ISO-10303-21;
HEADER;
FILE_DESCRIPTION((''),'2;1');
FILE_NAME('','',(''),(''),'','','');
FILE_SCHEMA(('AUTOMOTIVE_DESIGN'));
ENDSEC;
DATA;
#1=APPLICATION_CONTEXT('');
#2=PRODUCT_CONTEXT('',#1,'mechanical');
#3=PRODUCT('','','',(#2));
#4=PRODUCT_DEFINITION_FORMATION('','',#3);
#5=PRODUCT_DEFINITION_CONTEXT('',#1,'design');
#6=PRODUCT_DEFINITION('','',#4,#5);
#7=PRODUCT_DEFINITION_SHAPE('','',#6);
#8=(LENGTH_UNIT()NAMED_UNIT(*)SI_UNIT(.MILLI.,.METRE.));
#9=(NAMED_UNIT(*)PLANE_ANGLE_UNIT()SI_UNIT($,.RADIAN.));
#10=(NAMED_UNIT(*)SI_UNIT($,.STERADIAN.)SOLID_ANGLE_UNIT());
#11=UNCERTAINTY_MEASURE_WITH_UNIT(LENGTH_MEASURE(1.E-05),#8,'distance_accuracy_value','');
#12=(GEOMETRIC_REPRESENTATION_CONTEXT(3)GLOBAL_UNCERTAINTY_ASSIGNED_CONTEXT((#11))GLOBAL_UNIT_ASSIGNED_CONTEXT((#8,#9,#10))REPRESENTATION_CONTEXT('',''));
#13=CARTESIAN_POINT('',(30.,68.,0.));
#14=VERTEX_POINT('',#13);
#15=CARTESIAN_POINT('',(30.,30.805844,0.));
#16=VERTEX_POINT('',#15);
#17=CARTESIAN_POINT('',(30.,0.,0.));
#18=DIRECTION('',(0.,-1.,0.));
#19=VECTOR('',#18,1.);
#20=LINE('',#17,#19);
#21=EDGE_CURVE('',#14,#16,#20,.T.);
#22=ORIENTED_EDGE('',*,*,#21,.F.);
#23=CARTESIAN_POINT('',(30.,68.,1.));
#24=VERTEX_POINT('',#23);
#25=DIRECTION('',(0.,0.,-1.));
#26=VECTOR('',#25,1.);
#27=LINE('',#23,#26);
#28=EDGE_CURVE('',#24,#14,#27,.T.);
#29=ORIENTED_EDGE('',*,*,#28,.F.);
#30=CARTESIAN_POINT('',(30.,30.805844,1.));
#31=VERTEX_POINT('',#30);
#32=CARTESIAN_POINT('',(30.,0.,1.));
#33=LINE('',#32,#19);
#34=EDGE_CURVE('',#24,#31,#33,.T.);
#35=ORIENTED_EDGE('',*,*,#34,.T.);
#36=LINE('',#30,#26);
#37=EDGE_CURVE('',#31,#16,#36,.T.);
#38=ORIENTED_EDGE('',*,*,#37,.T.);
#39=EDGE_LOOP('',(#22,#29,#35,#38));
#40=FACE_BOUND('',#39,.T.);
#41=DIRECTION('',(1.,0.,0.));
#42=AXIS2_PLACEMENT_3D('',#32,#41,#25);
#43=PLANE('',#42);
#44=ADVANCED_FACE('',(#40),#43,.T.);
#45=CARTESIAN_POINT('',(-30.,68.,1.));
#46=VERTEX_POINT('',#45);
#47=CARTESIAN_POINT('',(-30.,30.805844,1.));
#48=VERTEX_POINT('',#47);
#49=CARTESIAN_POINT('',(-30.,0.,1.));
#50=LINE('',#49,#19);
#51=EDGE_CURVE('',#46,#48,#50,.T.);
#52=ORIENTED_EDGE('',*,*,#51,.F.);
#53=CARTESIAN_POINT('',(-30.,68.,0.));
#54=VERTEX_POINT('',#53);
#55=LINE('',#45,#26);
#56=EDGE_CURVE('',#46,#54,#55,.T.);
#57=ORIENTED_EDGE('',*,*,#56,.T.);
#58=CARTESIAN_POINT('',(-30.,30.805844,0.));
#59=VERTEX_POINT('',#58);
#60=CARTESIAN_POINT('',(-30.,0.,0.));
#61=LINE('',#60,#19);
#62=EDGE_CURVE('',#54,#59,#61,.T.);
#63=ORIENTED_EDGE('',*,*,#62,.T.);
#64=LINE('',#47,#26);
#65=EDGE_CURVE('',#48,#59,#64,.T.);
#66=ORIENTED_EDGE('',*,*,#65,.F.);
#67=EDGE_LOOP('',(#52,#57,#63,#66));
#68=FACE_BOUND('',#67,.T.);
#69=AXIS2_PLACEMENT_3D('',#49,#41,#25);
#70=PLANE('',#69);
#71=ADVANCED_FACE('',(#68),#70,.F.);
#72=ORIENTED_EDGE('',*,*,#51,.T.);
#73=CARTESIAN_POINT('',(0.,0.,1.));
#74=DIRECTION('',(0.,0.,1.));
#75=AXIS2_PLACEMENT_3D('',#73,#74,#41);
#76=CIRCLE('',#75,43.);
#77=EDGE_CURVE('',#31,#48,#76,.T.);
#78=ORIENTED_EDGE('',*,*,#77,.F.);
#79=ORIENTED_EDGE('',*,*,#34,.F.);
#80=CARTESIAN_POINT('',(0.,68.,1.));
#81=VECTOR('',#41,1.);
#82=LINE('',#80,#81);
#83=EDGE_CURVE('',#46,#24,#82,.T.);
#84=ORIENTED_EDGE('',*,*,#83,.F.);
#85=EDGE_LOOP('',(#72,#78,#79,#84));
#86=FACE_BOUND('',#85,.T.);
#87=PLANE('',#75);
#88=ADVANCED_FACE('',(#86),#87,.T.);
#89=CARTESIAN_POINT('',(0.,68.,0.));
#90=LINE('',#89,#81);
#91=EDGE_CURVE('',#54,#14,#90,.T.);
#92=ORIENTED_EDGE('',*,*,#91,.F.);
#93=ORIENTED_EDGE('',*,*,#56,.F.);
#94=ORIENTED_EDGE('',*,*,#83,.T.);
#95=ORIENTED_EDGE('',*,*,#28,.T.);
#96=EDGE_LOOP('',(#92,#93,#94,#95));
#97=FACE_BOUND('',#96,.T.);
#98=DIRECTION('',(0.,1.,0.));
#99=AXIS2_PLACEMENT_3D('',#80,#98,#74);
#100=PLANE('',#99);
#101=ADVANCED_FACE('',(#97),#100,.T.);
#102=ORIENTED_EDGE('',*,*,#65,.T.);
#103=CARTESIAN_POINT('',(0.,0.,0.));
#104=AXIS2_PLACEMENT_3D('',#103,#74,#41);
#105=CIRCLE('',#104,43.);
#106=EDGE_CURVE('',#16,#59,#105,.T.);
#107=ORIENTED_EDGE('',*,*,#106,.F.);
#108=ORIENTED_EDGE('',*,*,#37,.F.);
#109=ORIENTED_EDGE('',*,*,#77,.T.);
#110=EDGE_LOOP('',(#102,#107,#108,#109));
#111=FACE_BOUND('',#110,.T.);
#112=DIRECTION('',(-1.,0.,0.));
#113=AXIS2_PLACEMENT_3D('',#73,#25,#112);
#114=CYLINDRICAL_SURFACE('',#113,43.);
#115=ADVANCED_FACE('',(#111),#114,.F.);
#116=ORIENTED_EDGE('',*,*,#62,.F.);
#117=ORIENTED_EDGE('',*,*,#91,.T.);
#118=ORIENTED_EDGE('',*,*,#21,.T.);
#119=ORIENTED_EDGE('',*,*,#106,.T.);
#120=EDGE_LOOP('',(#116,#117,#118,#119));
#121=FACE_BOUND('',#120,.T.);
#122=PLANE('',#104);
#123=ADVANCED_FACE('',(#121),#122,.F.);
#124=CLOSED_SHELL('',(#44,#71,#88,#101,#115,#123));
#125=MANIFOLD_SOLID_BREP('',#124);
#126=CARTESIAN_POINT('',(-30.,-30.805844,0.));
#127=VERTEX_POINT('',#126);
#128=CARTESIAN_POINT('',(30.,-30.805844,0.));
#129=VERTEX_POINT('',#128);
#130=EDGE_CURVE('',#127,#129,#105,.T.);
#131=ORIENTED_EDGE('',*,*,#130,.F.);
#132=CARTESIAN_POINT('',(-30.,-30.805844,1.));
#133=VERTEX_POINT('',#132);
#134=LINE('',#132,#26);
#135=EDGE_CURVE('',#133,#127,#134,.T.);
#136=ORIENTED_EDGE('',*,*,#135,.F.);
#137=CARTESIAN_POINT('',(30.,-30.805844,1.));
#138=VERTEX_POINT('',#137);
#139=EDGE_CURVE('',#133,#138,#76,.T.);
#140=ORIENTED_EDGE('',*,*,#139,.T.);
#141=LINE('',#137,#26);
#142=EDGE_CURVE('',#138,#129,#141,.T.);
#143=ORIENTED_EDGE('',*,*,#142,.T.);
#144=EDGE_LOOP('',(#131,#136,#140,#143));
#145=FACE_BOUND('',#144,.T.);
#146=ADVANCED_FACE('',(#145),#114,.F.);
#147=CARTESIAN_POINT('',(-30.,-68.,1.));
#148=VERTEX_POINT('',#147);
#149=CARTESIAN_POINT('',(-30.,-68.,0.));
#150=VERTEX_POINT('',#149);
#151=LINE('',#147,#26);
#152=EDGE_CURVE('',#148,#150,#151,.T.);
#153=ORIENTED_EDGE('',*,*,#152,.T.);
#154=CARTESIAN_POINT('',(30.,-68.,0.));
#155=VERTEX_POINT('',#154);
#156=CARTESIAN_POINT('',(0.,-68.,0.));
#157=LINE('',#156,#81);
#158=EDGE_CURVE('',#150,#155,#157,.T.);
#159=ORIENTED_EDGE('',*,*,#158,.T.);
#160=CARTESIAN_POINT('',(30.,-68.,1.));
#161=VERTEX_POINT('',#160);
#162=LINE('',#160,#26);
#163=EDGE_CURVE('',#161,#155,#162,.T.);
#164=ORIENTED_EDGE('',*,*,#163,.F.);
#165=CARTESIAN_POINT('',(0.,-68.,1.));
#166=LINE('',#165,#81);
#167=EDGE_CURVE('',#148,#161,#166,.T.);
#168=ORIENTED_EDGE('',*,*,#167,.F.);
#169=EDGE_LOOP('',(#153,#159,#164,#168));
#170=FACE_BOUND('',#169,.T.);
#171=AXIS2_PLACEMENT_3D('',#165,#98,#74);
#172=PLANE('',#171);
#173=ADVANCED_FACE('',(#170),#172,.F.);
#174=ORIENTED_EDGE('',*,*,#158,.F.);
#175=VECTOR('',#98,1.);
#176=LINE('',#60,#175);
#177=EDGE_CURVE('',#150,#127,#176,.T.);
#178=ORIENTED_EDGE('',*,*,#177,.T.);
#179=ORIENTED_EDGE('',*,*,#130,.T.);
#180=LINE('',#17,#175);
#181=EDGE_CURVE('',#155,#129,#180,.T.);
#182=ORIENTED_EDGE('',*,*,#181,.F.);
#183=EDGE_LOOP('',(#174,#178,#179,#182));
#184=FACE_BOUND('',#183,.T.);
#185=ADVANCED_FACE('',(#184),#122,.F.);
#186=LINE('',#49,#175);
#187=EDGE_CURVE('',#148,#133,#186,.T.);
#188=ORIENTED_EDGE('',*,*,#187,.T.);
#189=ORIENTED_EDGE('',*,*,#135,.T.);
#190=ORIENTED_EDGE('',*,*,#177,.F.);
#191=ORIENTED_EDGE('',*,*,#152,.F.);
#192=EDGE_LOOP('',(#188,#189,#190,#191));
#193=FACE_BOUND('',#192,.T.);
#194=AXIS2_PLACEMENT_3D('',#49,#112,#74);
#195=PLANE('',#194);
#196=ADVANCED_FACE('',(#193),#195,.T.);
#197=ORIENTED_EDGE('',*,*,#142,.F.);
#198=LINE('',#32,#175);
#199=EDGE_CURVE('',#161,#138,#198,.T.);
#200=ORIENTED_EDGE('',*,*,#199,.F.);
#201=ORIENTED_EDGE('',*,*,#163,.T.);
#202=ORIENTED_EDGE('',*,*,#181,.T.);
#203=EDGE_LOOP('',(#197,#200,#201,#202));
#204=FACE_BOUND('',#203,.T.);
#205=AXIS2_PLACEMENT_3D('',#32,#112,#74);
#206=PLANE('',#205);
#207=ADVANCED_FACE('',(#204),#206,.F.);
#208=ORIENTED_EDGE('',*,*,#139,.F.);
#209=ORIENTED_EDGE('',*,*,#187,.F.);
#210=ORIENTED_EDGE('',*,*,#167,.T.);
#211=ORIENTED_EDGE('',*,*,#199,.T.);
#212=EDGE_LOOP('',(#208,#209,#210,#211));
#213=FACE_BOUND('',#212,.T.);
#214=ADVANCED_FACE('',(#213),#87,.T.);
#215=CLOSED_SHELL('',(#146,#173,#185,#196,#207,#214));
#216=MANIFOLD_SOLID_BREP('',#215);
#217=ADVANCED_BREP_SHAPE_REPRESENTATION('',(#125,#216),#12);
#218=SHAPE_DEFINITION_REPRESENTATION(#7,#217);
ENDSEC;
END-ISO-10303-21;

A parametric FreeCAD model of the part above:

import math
import FreeCAD as App
import Part
import Sketcher

doc = App.newDocument("Part")
body = doc.addObject("PartDesign::Body", "Body")

sketch1 = body.newObject("Sketcher::SketchObject", "Sketch")
sketch1.AttachmentSupport = (doc.getObject("XY_Plane"), [""])
sketch1.MapMode = "FlatFace"
sketch1.addGeometry([
    Part.LineSegment(App.Vector(30, 68, 0), App.Vector(-30, 68, 0)),
    Part.LineSegment(App.Vector(-30, 68, 0), App.Vector(-30, 31, 0)),
    Part.ArcOfCircle(Part.Circle(App.Vector(0, 0, 0), App.Vector(0, 0, 1), 43), math.radians(46), math.radians(134)),
    Part.LineSegment(App.Vector(30, 31, 0), App.Vector(30, 68, 0)),
], False)
sketch1.addConstraint([
    Sketcher.Constraint("Coincident", 0, 2, 1, 1),
    Sketcher.Constraint("Coincident", 1, 2, 2, 2),
    Sketcher.Constraint("Coincident", 2, 1, 3, 1),
    Sketcher.Constraint("Coincident", 3, 2, 0, 1),
    Sketcher.Constraint("Horizontal", 0),
    Sketcher.Constraint("Vertical", 1),
    Sketcher.Constraint("Vertical", 3),
    Sketcher.Constraint("Coincident", 2, 3, -1, 1),
    Sketcher.Constraint("Horizontal", 1, 2, 2, 1),
    Sketcher.Constraint("Radius", 2, 43.0),
    Sketcher.Constraint("DistanceX", 0, 2, 0, 1, 60.0),
    Sketcher.Constraint("DistanceY", -1, 1, 0, 2, 68.0),
])
pad1 = body.newObject("PartDesign::Pad", "Pad")
pad1.Profile = sketch1
pad1.Length = 1
body2 = doc.addObject("PartDesign::Body", "Body001")

sketch2 = body2.newObject("Sketcher::SketchObject", "Sketch001")
sketch2.AttachmentSupport = (doc.getObject("XY_Plane001"), [""])
sketch2.MapMode = "FlatFace"
sketch2.addGeometry([
    Part.ArcOfCircle(Part.Circle(App.Vector(0, 0, 0), App.Vector(0, 0, 1), 43), math.radians(-134), math.radians(-46)),
    Part.LineSegment(App.Vector(-30, -31, 0), App.Vector(-30, -68, 0)),
    Part.LineSegment(App.Vector(-30, -68, 0), App.Vector(30, -68, 0)),
    Part.LineSegment(App.Vector(30, -68, 0), App.Vector(30, -31, 0)),
], False)
sketch2.addConstraint([
    Sketcher.Constraint("Coincident", 0, 1, 1, 1),
    Sketcher.Constraint("Coincident", 1, 2, 2, 1),
    Sketcher.Constraint("Coincident", 2, 2, 3, 1),
    Sketcher.Constraint("Coincident", 3, 2, 0, 2),
    Sketcher.Constraint("Vertical", 1),
    Sketcher.Constraint("Horizontal", 2),
    Sketcher.Constraint("Vertical", 3),
    Sketcher.Constraint("Coincident", 0, 3, -1, 1),
    Sketcher.Constraint("Horizontal", 0, 1, 3, 2),
    Sketcher.Constraint("Radius", 0, 43.0),
    Sketcher.Constraint("DistanceX", 2, 1, 2, 2, 60.0),
    Sketcher.Constraint("DistanceY", 1, 2, -1, 1, 68.0),
])
pad2 = body2.newObject("PartDesign::Pad", "Pad001")
pad2.Profile = sketch2
pad2.Length = 1

doc.recompute()
